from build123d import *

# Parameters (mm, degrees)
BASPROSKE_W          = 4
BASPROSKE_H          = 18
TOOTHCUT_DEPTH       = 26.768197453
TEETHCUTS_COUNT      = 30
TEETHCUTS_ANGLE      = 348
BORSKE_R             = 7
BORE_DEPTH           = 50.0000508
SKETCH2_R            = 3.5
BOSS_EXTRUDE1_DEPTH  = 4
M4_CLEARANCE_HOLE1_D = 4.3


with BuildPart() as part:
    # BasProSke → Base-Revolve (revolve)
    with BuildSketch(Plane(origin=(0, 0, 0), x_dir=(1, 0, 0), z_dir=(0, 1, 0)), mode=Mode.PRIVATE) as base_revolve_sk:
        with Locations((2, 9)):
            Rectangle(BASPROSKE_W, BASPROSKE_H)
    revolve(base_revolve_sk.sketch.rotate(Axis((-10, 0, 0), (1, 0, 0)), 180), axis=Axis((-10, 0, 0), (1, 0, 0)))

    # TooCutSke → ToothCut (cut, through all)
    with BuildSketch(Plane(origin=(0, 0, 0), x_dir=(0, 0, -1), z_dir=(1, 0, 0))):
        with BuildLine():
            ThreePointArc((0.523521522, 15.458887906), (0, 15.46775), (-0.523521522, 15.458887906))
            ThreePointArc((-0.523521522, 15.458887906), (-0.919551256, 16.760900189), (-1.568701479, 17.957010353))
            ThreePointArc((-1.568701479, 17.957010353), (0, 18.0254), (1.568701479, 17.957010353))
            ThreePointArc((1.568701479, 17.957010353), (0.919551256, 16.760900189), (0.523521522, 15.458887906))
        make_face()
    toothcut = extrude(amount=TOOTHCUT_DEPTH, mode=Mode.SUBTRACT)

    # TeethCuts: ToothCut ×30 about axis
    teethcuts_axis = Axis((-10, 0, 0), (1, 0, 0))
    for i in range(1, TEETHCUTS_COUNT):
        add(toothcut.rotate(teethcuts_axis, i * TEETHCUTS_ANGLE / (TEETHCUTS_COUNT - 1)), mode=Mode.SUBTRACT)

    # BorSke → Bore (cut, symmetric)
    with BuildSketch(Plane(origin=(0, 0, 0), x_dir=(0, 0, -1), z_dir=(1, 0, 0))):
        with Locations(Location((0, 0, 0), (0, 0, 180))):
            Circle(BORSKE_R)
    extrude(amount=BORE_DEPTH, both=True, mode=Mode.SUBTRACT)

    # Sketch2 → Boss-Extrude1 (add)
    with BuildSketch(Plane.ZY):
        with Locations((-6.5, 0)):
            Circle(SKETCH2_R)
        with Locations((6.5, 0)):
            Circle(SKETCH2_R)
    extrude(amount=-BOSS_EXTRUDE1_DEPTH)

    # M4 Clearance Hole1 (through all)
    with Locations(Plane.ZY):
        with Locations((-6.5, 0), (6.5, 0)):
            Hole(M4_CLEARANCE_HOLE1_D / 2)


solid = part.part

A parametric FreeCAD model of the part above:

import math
import FreeCAD as App
import Part
import Sketcher

V = App.Vector
Q = App.Units.Quantity


def add_polygon(sketch, points):
    """Adds a closed chain of lines whose ends are joined by coincident constraints."""
    first, n = sketch.GeometryCount, len(points)
    for a, b in zip(points, points[1:] + points[:1]):
        sketch.addGeometry(Part.LineSegment(App.Vector(*a, 0), App.Vector(*b, 0)), False)
    for i in range(n):
        sketch.addConstraint(Sketcher.Constraint("Coincident", first + i, 2, first + (i + 1) % n, 1))

doc = App.newDocument("Part")
params = doc.addObject("Spreadsheet::Sheet", "Params")
for row, (alias, value) in enumerate([
    ("sketch1_width", "4 mm"),
    ("sketch1_height", "18 mm"),
    ("revolution_angle", "360 deg"),
    ("sketch2_radius", "6.75 mm"),
    ("sketch3_diameter", "14 mm"),
    ("pocket2_length", "100.000102 mm"),
    ("sketch4_diameter", "7 mm"),
    ("pad1_length", "4 mm"),
    ("sketch5_diameter", "4.3 mm"),
    ("hole_diameter", "4.3 mm"),
], start=1):
    params.set(f"A{row}", alias)
    params.set(f"B{row}", "=" + value)
    params.setAlias(f"B{row}", alias)

body = doc.addObject("PartDesign::Body", "Body")

# Sketch on XZ plane
sketch1 = body.newObject("Sketcher::SketchObject", "Sketch")
sketch1.AttachmentSupport = (doc.getObject("XZ_Plane"), [""])
sketch1.MapMode = "FlatFace"
add_polygon(sketch1, [(0, -18), (0, 0), (4, 0), (4, -18)])  # lines 0-3
sketch1.addConstraint([
    Sketcher.Constraint("Vertical", 0),
    Sketcher.Constraint("Horizontal", 1),
    Sketcher.Constraint("Vertical", 2),
    Sketcher.Constraint("Horizontal", 3),
    Sketcher.Constraint("Coincident", 0, 2, -1, 1),
    Sketcher.Constraint("DistanceX", 1, 1, 1, 2, Q("4 mm")),
    Sketcher.Constraint("DistanceY", 0, 1, 0, 2, Q("18 mm")),
])
sketch1.setExpression("Constraints[9]", "Params.sketch1_width")
sketch1.setExpression("Constraints[10]", "Params.sketch1_height")
revolution = body.newObject("PartDesign::Revolution", "Revolution")
revolution.Profile = sketch1
revolution.ReferenceAxis = (sketch1, ["H_Axis"])
revolution.setExpression("Angle", "Params.revolution_angle")

# Sketch on YZ plane
sketch2 = body.newObject("Sketcher::SketchObject", "Sketch001")
sketch2.AttachmentSupport = (doc.getObject("YZ_Plane"), [""])
sketch2.MapMode = "FlatFace"
sketch2.addGeometry([
    Part.ArcOfCircle(Part.Circle(V(-0.000001, 0, 0), V(0, 0, 1), 15.467751), math.radians(-1.939604), math.radians(1.939604)),
    Part.ArcOfCircle(Part.Circle(V(14.155626, -7.146512, 0), V(0, 0, 1), 6.75), math.radians(55.724822), math.radians(78.867655)),
    Part.ArcOfCircle(Part.Circle(V(0, 0, 0), V(0, 0, 1), 18.0254), math.radians(-4.992611), math.radians(4.992611)),
    Part.ArcOfCircle(Part.Circle(V(14.155626, 7.146512, 0), V(0, 0, 1), 6.75), math.radians(-78.867655), math.radians(-55.724822)),
], False)
sketch2.addConstraint([
    Sketcher.Constraint("Coincident", 0, 1, 1, 2),
    Sketcher.Constraint("Coincident", 1, 1, 2, 1),
    Sketcher.Constraint("Coincident", 2, 2, 3, 2),
    Sketcher.Constraint("Coincident", 3, 1, 0, 2),
    Sketcher.Constraint("Coincident", 0, 3, -1, 1),
    Sketcher.Constraint("Coincident", 2, 3, -1, 1),
    Sketcher.Constraint("Equal", 1, 3),
    Sketcher.Constraint("Symmetric", 1, 3, 3, 3, -1),
    Sketcher.Constraint("Radius", 1, Q("6.75 mm")),
    Sketcher.Constraint("Radius", 2, Q("18.0254 mm")),
    Sketcher.Constraint("Radius", 0, Q("15.467751 mm")),
    Sketcher.Constraint("DistanceY", 1, 1, -1, 1, Q("1.568701 mm")),
    Sketcher.Constraint("DistanceY", 0, 1, -1, 1, Q("0.523522 mm")),
])
sketch2.setExpression("Constraints[8]", "Params.sketch2_radius")
pocket1 = body.newObject("PartDesign::Pocket", "Pocket")
pocket1.Profile = sketch2
pocket1.Type = "ThroughAll"
pocket1.Reversed = True
doc.recompute()

polarpattern = body.newObject("PartDesign::PolarPattern", "PolarPattern")
polarpattern.Originals = [pocket1]
polarpattern.Axis = (doc.getObject("X_Axis"), [""])
polarpattern.Angle = 360
polarpattern.Occurrences = 30
body.Tip = polarpattern

# Sketch on YZ plane
sketch3 = body.newObject("Sketcher::SketchObject", "Sketch002")
sketch3.AttachmentSupport = (doc.getObject("YZ_Plane"), [""])
sketch3.MapMode = "FlatFace"
sketch3.addGeometry(Part.Circle(V(0, 0, 0), V(0, 0, 1), 7), False)
sketch3.addConstraint([
    Sketcher.Constraint("Coincident", 0, 3, -1, 1),
    Sketcher.Constraint("Diameter", 0, Q("14 mm")),
])
sketch3.setExpression("Constraints[1]", "Params.sketch3_diameter")
pocket2 = body.newObject("PartDesign::Pocket", "Pocket001")
pocket2.Profile = sketch3
pocket2.setExpression("Length", "Params.pocket2_length")
pocket2.Midplane = True

# Sketch on YZ plane
sketch4 = body.newObject("Sketcher::SketchObject", "Sketch003")
sketch4.AttachmentSupport = (doc.getObject("YZ_Plane"), [""])
sketch4.MapMode = "FlatFace"
sketch4.addGeometry([
    Part.Circle(V(0, -6.5, 0), V(0, 0, 1), 3.5),
    Part.Circle(V(0, 6.5, 0), V(0, 0, 1), 3.5),
], False)
sketch4.addConstraint([
    Sketcher.Constraint("Equal", 0, 1),
    Sketcher.Constraint("Symmetric", 0, 3, 1, 3, -1, 1),
    Sketcher.Constraint("PointOnObject", 0, 3, -2),
    Sketcher.Constraint("Diameter", 0, Q("7 mm")),
    Sketcher.Constraint("DistanceY", 0, 3, 1, 3, Q("13 mm")),
])
sketch4.setExpression("Constraints[3]", "Params.sketch4_diameter")
pad1 = body.newObject("PartDesign::Pad", "Pad")
pad1.Profile = sketch4
pad1.setExpression("Length", "Params.pad1_length")

# Sketch on YZ plane
sketch5 = body.newObject("Sketcher::SketchObject", "Sketch004")
sketch5.AttachmentSupport = (doc.getObject("YZ_Plane"), [""])
sketch5.MapMode = "FlatFace"
sketch5.addGeometry([
    Part.Circle(V(0, -6.5, 0), V(0, 0, 1), 2.15),
    Part.Circle(V(0, 6.5, 0), V(0, 0, 1), 2.15),
], False)
sketch5.addConstraint([
    Sketcher.Constraint("Equal", 0, 1),
    Sketcher.Constraint("Symmetric", 0, 3, 1, 3, -1, 1),
    Sketcher.Constraint("PointOnObject", 0, 3, -2),
    Sketcher.Constraint("Diameter", 0, Q("4.3 mm")),
    Sketcher.Constraint("DistanceY", 0, 3, 1, 3, Q("13 mm")),
])
sketch5.setExpression("Constraints[3]", "Params.sketch5_diameter")
doc.recompute()
hole = body.newObject("PartDesign::Hole", "Hole")
hole.Profile = sketch5
hole.ThreadType = "None"
hole.setExpression("Diameter", "Params.hole_diameter")
hole.DepthType = "ThroughAll"
hole.Reversed = True

doc.recompute()
